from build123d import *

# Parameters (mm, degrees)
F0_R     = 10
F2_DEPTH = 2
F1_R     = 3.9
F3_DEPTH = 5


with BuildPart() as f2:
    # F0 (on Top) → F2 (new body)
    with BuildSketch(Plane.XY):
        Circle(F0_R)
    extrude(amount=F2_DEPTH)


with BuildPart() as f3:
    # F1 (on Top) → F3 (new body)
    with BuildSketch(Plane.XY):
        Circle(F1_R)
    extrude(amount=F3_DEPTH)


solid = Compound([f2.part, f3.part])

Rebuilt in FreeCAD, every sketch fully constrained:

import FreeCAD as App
import Part
import Sketcher
from FreeCAD import Vector
Q = App.Units.Quantity

doc = App.newDocument("Part")
body = doc.addObject("PartDesign::Body", "Body")

sketch1 = body.newObject("Sketcher::SketchObject", "Sketch")
sketch1.AttachmentSupport = (doc.getObject("XY_Plane"), [""])
sketch1.MapMode = "FlatFace"
sketch1.addGeometry(Part.Circle(Vector(0, 0, 0), Vector(0, 0, 1), 10), False)
sketch1.addConstraint(Sketcher.Constraint("Coincident", 0, 3, -1, 1))
sketch1.addConstraint(Sketcher.Constraint("Diameter", 0, Q("20 mm")))
pad1 = body.newObject("PartDesign::Pad", "Pad")
pad1.Profile = sketch1
pad1.Length = 2
body2 = doc.addObject("PartDesign::Body", "Body001")

sketch2 = body2.newObject("Sketcher::SketchObject", "Sketch001")
sketch2.AttachmentSupport = (doc.getObject("XY_Plane001"), [""])
sketch2.MapMode = "FlatFace"
sketch2.addGeometry(Part.Circle(Vector(0, 0, 0), Vector(0, 0, 1), 3.9), False)
sketch2.addConstraint(Sketcher.Constraint("Coincident", 0, 3, -1, 1))
sketch2.addConstraint(Sketcher.Constraint("Diameter", 0, Q("7.8 mm")))
pad2 = body2.newObject("PartDesign::Pad", "Pad001")
pad2.Profile = sketch2
pad2.Length = 5

doc.recompute()
